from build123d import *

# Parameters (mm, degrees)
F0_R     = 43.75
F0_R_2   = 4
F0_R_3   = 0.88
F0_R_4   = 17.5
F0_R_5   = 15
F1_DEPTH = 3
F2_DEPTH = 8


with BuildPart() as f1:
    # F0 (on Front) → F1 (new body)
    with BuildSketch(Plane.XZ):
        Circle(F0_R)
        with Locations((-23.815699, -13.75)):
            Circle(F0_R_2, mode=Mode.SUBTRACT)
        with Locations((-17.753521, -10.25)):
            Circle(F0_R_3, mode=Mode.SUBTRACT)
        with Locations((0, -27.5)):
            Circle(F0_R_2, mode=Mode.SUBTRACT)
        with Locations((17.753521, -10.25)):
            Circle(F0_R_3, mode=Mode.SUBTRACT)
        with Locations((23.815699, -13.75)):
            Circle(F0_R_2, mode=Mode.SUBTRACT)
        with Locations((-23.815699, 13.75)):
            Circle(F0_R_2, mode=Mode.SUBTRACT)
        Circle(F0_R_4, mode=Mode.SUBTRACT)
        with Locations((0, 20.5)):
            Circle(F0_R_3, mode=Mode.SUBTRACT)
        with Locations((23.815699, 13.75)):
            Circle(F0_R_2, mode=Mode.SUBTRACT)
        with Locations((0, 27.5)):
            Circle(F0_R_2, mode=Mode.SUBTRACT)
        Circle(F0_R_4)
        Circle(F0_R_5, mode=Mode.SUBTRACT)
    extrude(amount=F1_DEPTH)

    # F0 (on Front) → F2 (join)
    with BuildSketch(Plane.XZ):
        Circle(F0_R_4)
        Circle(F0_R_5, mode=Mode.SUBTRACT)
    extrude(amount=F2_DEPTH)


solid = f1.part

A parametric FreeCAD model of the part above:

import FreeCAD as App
import Part
import Sketcher

doc = App.newDocument("Part")
params = doc.addObject("Spreadsheet::Sheet", "Params")
for row, (alias, value) in enumerate([
    ("sketch1_diameter", "8 mm"),
    ("sketch1_diameter2", "30 mm"),
    ("sketch1_diameter3", "87.5 mm"),
    ("sketch1_diameter4", "1.76 mm"),
    ("pad1_length", "3 mm"),
    ("sketch2_diameter", "35 mm"),
    ("sketch2_diameter2", "30 mm"),
    ("pad2_length", "8 mm"),
], start=1):
    params.set(f"A{row}", alias)
    params.set(f"B{row}", "=" + value)
    params.setAlias(f"B{row}", alias)

body = doc.addObject("PartDesign::Body", "Body")

sketch1 = doc.addObject("Sketcher::SketchObject", "Sketch")
body.addObject(sketch1)
sketch1.AttachmentSupport = (doc.XZ_Plane, [""])
sketch1.MapMode = "FlatFace"
sketch1.addGeometry(Part.Circle(App.Vector(0, 0, 0), App.Vector(0, 0, 1), 43.8), False)
sketch1.addGeometry(Part.Circle(App.Vector(-23.8, -13.8, 0), App.Vector(0, 0, 1), 4), False)
sketch1.addGeometry(Part.Circle(App.Vector(-17.8, -10.2, 0), App.Vector(0, 0, 1), 0.9), False)
sketch1.addGeometry(Part.Circle(App.Vector(0, -27.5, 0), App.Vector(0, 0, 1), 4), False)
sketch1.addGeometry(Part.Circle(App.Vector(17.8, -10.2, 0), App.Vector(0, 0, 1), 0.9), False)
sketch1.addGeometry(Part.Circle(App.Vector(23.8, -13.8, 0), App.Vector(0, 0, 1), 4), False)
sketch1.addGeometry(Part.Circle(App.Vector(-23.8, 13.8, 0), App.Vector(0, 0, 1), 4), False)
sketch1.addGeometry(Part.Circle(App.Vector(0, 0, 0), App.Vector(0, 0, 1), 15), False)
sketch1.addGeometry(Part.Circle(App.Vector(23.8, 13.8, 0), App.Vector(0, 0, 1), 4), False)
sketch1.addGeometry(Part.Circle(App.Vector(0, 20.5, 0), App.Vector(0, 0, 1), 0.9), False)
sketch1.addGeometry(Part.Circle(App.Vector(0, 27.5, 0), App.Vector(0, 0, 1), 4), False)
sketch1.addConstraint(Sketcher.Constraint("Coincident", 0, 3, -1, 1))
sketch1.addConstraint(Sketcher.Constraint("Coincident", 7, 3, -1, 1))
sketch1.addConstraint(Sketcher.Constraint("Equal", 1, 3))
sketch1.addConstraint(Sketcher.Constraint("Equal", 2, 4))
sketch1.addConstraint(Sketcher.Constraint("Equal", 3, 5))
sketch1.addConstraint(Sketcher.Constraint("Equal", 5, 6))
sketch1.addConstraint(Sketcher.Constraint("Equal", 6, 8))
sketch1.addConstraint(Sketcher.Constraint("Equal", 4, 9))
sketch1.addConstraint(Sketcher.Constraint("Equal", 8, 10))
sketch1.addConstraint(Sketcher.Constraint("Symmetric", 5, 3, 6, 3, -1, 1))
sketch1.addConstraint(Sketcher.Constraint("Symmetric", 1, 3, 8, 3, -1, 1))
sketch1.addConstraint(Sketcher.Constraint("Symmetric", 3, 3, 10, 3, -1, 1))
sketch1.addConstraint(Sketcher.Constraint("Symmetric", 2, 3, 4, 3, -2))
sketch1.addConstraint(Sketcher.Constraint("Symmetric", 1, 3, 5, 3, -2))
sketch1.addConstraint(Sketcher.Constraint("PointOnObject", 3, 3, -2))
sketch1.addConstraint(Sketcher.Constraint("PointOnObject", 9, 3, -2))
sketch1.addConstraint(Sketcher.Constraint("Diameter", 1, 8.0))
sketch1.addConstraint(Sketcher.Constraint("Diameter", 7, 30.0))
sketch1.addConstraint(Sketcher.Constraint("Diameter", 0, 87.5))
sketch1.addConstraint(Sketcher.Constraint("Diameter", 2, 1.76))
sketch1.addConstraint(Sketcher.Constraint("DistanceY", 2, 3, 6, 3, 24.0))
sketch1.addConstraint(Sketcher.Constraint("DistanceY", 9, 3, 10, 3, 7.0))
sketch1.addConstraint(Sketcher.Constraint("DistanceY", 3, 3, -1, 1, 27.5))
sketch1.addConstraint(Sketcher.Constraint("DistanceY", 1, 3, 2, 3, 3.5))
sketch1.addConstraint(Sketcher.Constraint("DistanceX", 1, 3, -1, 1, 23.815699))
sketch1.addConstraint(Sketcher.Constraint("DistanceX", 2, 3, -1, 1, 17.753521))
sketch1.setExpression("Constraints[16]", "Params.sketch1_diameter")
sketch1.setExpression("Constraints[17]", "Params.sketch1_diameter2")
sketch1.setExpression("Constraints[18]", "Params.sketch1_diameter3")
sketch1.setExpression("Constraints[19]", "Params.sketch1_diameter4")
pad1 = doc.addObject("PartDesign::Pad", "Pad")
body.addObject(pad1)
pad1.Profile = sketch1
pad1.setExpression("Length", "Params.pad1_length")

sketch2 = doc.addObject("Sketcher::SketchObject", "Sketch001")
body.addObject(sketch2)
sketch2.AttachmentSupport = (doc.XZ_Plane, [""])
sketch2.MapMode = "FlatFace"
sketch2.addGeometry(Part.Circle(App.Vector(0, 0, 0), App.Vector(0, 0, 1), 18), False)
sketch2.addGeometry(Part.Circle(App.Vector(0, 0, 0), App.Vector(0, 0, 1), 15), False)
sketch2.addConstraint(Sketcher.Constraint("Coincident", 0, 3, -1, 1))
sketch2.addConstraint(Sketcher.Constraint("Coincident", 1, 3, -1, 1))
sketch2.addConstraint(Sketcher.Constraint("Diameter", 0, 35.0))
sketch2.addConstraint(Sketcher.Constraint("Diameter", 1, 30.0))
sketch2.setExpression("Constraints[2]", "Params.sketch2_diameter")
sketch2.setExpression("Constraints[3]", "Params.sketch2_diameter2")
pad2 = doc.addObject("PartDesign::Pad", "Pad001")
body.addObject(pad2)
pad2.Profile = sketch2
pad2.setExpression("Length", "Params.pad2_length")

doc.recompute()
